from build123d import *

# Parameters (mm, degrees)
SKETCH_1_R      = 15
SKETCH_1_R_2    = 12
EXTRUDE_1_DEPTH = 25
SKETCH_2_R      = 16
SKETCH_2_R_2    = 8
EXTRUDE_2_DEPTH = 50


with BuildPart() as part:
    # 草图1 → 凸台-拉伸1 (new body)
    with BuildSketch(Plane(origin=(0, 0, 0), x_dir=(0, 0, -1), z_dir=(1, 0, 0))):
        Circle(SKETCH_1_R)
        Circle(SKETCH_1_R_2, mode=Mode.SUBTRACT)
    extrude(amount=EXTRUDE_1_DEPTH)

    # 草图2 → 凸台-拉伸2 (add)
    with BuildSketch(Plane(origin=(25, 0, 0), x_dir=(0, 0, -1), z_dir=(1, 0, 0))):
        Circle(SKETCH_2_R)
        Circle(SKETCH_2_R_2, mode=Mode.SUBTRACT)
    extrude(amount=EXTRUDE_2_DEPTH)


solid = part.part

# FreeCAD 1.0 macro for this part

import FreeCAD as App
import Part
import Sketcher

V = App.Vector
Q = App.Units.Quantity

doc = App.newDocument("Part")
body = doc.addObject("PartDesign::Body", "Body")

# Sketch on YZ plane
sketch1 = body.newObject("Sketcher::SketchObject", "Sketch")
sketch1.AttachmentSupport = (doc.getObject("YZ_Plane"), [""])
sketch1.MapMode = "FlatFace"
sketch1.addGeometry([
    Part.Circle(V(0, 0, 0), V(0, 0, 1), 15),
    Part.Circle(V(0, 0, 0), V(0, 0, 1), 12),
], False)
sketch1.addConstraint([
    Sketcher.Constraint("Coincident", 0, 3, -1, 1),
    Sketcher.Constraint("Coincident", 1, 3, -1, 1),
    Sketcher.Constraint("Diameter", 0, Q("30 mm")),
    Sketcher.Constraint("Diameter", 1, Q("24 mm")),
])
pad1 = body.newObject("PartDesign::Pad", "Pad")
pad1.Profile = sketch1
pad1.Length = 25

# Sketch on YZ plane
sketch2 = body.newObject("Sketcher::SketchObject", "Sketch001")
sketch2.AttachmentSupport = (doc.getObject("YZ_Plane"), [""])
sketch2.MapMode = "FlatFace"
sketch2.AttachmentOffset = App.Placement(V(0, 0, 25), App.Rotation())
sketch2.addGeometry([
    Part.Circle(V(0, 0, 0), V(0, 0, 1), 16),
    Part.Circle(V(0, 0, 0), V(0, 0, 1), 8),
], False)
sketch2.addConstraint([
    Sketcher.Constraint("Coincident", 0, 3, -1, 1),
    Sketcher.Constraint("Coincident", 1, 3, -1, 1),
    Sketcher.Constraint("Diameter", 0, Q("32 mm")),
    Sketcher.Constraint("Diameter", 1, Q("16 mm")),
])
pad2 = body.newObject("PartDesign::Pad", "Pad001")
pad2.Profile = sketch2
pad2.Length = 50

doc.recompute()
